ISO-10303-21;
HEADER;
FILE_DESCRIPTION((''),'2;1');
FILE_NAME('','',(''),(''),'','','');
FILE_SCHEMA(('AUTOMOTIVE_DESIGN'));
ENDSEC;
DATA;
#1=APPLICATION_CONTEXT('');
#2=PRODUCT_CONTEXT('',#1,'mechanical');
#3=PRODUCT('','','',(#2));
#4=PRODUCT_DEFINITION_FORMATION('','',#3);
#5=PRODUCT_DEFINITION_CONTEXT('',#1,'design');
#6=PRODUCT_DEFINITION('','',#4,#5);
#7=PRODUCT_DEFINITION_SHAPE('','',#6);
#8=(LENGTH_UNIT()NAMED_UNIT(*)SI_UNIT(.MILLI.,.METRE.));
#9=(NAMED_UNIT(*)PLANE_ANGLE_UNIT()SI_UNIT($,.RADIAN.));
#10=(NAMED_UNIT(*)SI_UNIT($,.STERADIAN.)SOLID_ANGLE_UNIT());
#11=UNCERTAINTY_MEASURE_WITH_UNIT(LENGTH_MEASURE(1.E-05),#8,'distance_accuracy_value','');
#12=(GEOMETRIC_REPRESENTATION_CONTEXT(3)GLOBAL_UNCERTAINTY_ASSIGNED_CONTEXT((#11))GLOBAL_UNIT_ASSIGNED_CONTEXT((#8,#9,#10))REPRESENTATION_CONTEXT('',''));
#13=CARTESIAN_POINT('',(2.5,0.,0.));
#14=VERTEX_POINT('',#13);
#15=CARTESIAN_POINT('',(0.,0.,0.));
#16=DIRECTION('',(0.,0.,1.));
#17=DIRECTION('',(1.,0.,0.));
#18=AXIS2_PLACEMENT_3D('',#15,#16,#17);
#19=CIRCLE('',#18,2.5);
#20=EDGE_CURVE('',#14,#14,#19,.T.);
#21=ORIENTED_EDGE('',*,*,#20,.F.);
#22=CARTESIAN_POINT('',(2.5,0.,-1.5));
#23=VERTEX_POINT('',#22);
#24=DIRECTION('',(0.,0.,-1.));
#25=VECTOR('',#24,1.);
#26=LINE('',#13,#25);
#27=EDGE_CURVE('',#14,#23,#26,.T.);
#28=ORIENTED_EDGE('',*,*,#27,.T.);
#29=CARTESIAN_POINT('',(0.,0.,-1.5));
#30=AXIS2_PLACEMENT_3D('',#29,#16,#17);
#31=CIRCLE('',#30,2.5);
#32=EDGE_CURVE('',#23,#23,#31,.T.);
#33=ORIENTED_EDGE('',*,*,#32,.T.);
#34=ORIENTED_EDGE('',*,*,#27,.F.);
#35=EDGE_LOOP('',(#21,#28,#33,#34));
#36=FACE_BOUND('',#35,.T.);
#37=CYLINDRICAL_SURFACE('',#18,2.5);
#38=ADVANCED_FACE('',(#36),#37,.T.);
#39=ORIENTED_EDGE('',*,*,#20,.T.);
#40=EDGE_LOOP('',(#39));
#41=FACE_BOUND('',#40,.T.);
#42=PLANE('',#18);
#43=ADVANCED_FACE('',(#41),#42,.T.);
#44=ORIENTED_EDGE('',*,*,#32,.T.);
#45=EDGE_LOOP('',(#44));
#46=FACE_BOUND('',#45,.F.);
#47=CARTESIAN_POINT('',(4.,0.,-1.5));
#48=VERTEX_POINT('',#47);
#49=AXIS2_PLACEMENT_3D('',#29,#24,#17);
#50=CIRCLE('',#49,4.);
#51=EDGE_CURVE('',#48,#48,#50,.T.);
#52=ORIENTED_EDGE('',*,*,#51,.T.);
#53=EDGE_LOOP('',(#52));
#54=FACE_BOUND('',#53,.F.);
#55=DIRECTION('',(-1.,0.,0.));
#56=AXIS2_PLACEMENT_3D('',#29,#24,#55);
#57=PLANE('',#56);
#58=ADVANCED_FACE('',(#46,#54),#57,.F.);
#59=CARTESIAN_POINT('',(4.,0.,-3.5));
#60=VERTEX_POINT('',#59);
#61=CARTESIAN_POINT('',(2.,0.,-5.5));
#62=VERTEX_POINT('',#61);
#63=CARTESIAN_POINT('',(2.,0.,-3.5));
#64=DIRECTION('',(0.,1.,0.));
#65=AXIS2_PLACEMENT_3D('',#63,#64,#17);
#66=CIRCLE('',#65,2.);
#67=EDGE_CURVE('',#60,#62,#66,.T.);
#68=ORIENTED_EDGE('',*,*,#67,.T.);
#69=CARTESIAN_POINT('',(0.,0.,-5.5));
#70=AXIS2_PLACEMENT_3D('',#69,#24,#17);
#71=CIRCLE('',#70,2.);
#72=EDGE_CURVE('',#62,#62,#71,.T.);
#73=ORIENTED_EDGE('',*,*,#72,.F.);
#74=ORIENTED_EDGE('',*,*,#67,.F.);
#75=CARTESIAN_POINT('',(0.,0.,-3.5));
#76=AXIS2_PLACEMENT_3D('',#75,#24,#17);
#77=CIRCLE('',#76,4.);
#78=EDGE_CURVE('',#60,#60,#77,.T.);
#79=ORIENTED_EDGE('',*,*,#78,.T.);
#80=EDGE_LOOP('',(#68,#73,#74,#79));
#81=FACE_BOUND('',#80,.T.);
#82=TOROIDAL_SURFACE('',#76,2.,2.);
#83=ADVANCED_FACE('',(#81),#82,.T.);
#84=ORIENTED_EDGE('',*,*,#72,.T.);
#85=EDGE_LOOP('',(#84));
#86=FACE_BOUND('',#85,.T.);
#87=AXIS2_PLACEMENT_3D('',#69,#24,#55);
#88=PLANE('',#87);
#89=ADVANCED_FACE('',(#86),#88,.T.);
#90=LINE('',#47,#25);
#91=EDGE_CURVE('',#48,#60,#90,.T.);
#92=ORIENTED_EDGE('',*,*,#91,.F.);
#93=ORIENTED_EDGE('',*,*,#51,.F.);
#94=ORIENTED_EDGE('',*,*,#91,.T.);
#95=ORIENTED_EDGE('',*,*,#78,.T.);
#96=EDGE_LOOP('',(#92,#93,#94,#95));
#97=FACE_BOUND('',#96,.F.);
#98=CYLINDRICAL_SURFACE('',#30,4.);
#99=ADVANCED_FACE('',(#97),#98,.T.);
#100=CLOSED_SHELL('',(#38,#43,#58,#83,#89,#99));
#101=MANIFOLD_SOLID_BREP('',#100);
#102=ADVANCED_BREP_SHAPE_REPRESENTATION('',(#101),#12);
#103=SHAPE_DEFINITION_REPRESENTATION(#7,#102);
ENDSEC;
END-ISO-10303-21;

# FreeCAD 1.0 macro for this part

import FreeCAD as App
import Part
import Sketcher
Q = App.Units.Quantity


def edges_at(feature, points):
    """Names of the edges that pass closest to the given points."""
    edges = feature.Shape.Edges
    near = lambda p: min(range(len(edges)), key=lambda i: edges[i].distToShape(Part.Vertex(*p))[0])
    return sorted({f"Edge{near(p) + 1}" for p in points})

doc = App.newDocument("Part")
body = doc.addObject("PartDesign::Body", "Body")

# Sketch on XY plane
sketch1 = body.newObject("Sketcher::SketchObject", "Sketch")
sketch1.AttachmentSupport = (doc.getObject("XY_Plane"), [""])
sketch1.MapMode = "FlatFace"
sketch1.addGeometry(Part.Circle(App.Vector(0, 0, 0), App.Vector(0, 0, 1), 2.5), False)
sketch1.addConstraint([
    Sketcher.Constraint("Coincident", 0, 3, -1, 1),
    Sketcher.Constraint("Diameter", 0, Q("5 mm")),
])
pad1 = body.newObject("PartDesign::Pad", "Pad")
pad1.Profile = sketch1
pad1.Length = 1.5
pad1.Reversed = True

# Sketch on XY plane
sketch2 = body.newObject("Sketcher::SketchObject", "Sketch001")
sketch2.AttachmentSupport = (doc.getObject("XY_Plane"), [""])
sketch2.MapMode = "FlatFace"
sketch2.AttachmentOffset = App.Placement(App.Vector(0, 0, -1.5), App.Rotation())
sketch2.addGeometry(Part.Circle(App.Vector(0, 0, 0), App.Vector(0, 0, 1), 4), False)
sketch2.addConstraint([
    Sketcher.Constraint("Coincident", 0, 3, -1, 1),
    Sketcher.Constraint("Diameter", 0, Q("8 mm")),
])
pad2 = body.newObject("PartDesign::Pad", "Pad001")
pad2.Profile = sketch2
pad2.Length = 4
pad2.Reversed = True
doc.recompute()

fillet = body.newObject("PartDesign::Fillet", "Fillet")
fillet.Base = (pad2, edges_at(pad2, [(-4, 0, -5.5)]))
fillet.Radius = 2

doc.recompute()
